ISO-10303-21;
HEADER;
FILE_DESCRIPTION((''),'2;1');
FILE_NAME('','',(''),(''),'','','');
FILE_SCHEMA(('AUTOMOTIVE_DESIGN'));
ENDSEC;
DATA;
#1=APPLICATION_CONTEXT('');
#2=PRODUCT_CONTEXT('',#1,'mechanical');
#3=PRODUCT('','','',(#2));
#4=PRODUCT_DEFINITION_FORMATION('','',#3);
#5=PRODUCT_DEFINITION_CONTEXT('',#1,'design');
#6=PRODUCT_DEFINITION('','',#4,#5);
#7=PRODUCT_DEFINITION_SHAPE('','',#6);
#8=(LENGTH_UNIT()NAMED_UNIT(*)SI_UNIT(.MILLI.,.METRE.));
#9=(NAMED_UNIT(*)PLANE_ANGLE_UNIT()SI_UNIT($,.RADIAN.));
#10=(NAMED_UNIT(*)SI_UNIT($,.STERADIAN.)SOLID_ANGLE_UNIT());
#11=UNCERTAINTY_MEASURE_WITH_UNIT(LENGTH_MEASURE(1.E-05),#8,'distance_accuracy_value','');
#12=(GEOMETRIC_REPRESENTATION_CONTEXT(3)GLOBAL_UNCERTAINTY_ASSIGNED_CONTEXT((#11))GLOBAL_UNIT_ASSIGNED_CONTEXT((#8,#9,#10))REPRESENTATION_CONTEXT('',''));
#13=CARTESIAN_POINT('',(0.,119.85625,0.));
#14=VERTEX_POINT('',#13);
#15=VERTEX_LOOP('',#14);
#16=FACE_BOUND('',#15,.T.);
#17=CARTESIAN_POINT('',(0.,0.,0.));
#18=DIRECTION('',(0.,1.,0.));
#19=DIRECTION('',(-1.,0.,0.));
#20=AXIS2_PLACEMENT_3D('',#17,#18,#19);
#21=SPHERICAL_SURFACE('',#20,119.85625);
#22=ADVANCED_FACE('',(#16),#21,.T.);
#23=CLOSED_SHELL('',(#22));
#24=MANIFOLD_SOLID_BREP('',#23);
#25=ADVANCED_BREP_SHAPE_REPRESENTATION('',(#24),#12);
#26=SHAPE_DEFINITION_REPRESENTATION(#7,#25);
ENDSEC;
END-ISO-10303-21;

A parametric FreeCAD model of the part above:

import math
import FreeCAD as App
import Part
import Sketcher
Q = App.Units.Quantity

doc = App.newDocument("Part")
body = doc.addObject("PartDesign::Body", "Body")

# Sketch on XY plane
sketch1 = body.newObject("Sketcher::SketchObject", "Sketch")
sketch1.AttachmentSupport = (doc.getObject("XY_Plane"), [""])
sketch1.MapMode = "FlatFace"
sketch1.addGeometry([
    Part.LineSegment(App.Vector(0, 119.85625, 0), App.Vector(0, -119.85625, 0)),
    Part.ArcOfCircle(Part.Circle(App.Vector(0, 0, 0), App.Vector(0, 0, 1), 119.85625), math.radians(-90), math.radians(90)),
], False)
sketch1.addConstraint([
    Sketcher.Constraint("Coincident", 0, 1, 1, 2),
    Sketcher.Constraint("Coincident", 1, 1, 0, 2),
    Sketcher.Constraint("Vertical", 0),
    Sketcher.Constraint("Coincident", 1, 3, -1, 1),
    Sketcher.Constraint("PointOnObject", 0, 1, -2),
    Sketcher.Constraint("Radius", 1, Q("4.71875 in")),
])
revolution = body.newObject("PartDesign::Revolution", "Revolution")
revolution.Profile = sketch1
revolution.ReferenceAxis = (sketch1, ["V_Axis"])
revolution.Angle = 360

doc.recompute()
